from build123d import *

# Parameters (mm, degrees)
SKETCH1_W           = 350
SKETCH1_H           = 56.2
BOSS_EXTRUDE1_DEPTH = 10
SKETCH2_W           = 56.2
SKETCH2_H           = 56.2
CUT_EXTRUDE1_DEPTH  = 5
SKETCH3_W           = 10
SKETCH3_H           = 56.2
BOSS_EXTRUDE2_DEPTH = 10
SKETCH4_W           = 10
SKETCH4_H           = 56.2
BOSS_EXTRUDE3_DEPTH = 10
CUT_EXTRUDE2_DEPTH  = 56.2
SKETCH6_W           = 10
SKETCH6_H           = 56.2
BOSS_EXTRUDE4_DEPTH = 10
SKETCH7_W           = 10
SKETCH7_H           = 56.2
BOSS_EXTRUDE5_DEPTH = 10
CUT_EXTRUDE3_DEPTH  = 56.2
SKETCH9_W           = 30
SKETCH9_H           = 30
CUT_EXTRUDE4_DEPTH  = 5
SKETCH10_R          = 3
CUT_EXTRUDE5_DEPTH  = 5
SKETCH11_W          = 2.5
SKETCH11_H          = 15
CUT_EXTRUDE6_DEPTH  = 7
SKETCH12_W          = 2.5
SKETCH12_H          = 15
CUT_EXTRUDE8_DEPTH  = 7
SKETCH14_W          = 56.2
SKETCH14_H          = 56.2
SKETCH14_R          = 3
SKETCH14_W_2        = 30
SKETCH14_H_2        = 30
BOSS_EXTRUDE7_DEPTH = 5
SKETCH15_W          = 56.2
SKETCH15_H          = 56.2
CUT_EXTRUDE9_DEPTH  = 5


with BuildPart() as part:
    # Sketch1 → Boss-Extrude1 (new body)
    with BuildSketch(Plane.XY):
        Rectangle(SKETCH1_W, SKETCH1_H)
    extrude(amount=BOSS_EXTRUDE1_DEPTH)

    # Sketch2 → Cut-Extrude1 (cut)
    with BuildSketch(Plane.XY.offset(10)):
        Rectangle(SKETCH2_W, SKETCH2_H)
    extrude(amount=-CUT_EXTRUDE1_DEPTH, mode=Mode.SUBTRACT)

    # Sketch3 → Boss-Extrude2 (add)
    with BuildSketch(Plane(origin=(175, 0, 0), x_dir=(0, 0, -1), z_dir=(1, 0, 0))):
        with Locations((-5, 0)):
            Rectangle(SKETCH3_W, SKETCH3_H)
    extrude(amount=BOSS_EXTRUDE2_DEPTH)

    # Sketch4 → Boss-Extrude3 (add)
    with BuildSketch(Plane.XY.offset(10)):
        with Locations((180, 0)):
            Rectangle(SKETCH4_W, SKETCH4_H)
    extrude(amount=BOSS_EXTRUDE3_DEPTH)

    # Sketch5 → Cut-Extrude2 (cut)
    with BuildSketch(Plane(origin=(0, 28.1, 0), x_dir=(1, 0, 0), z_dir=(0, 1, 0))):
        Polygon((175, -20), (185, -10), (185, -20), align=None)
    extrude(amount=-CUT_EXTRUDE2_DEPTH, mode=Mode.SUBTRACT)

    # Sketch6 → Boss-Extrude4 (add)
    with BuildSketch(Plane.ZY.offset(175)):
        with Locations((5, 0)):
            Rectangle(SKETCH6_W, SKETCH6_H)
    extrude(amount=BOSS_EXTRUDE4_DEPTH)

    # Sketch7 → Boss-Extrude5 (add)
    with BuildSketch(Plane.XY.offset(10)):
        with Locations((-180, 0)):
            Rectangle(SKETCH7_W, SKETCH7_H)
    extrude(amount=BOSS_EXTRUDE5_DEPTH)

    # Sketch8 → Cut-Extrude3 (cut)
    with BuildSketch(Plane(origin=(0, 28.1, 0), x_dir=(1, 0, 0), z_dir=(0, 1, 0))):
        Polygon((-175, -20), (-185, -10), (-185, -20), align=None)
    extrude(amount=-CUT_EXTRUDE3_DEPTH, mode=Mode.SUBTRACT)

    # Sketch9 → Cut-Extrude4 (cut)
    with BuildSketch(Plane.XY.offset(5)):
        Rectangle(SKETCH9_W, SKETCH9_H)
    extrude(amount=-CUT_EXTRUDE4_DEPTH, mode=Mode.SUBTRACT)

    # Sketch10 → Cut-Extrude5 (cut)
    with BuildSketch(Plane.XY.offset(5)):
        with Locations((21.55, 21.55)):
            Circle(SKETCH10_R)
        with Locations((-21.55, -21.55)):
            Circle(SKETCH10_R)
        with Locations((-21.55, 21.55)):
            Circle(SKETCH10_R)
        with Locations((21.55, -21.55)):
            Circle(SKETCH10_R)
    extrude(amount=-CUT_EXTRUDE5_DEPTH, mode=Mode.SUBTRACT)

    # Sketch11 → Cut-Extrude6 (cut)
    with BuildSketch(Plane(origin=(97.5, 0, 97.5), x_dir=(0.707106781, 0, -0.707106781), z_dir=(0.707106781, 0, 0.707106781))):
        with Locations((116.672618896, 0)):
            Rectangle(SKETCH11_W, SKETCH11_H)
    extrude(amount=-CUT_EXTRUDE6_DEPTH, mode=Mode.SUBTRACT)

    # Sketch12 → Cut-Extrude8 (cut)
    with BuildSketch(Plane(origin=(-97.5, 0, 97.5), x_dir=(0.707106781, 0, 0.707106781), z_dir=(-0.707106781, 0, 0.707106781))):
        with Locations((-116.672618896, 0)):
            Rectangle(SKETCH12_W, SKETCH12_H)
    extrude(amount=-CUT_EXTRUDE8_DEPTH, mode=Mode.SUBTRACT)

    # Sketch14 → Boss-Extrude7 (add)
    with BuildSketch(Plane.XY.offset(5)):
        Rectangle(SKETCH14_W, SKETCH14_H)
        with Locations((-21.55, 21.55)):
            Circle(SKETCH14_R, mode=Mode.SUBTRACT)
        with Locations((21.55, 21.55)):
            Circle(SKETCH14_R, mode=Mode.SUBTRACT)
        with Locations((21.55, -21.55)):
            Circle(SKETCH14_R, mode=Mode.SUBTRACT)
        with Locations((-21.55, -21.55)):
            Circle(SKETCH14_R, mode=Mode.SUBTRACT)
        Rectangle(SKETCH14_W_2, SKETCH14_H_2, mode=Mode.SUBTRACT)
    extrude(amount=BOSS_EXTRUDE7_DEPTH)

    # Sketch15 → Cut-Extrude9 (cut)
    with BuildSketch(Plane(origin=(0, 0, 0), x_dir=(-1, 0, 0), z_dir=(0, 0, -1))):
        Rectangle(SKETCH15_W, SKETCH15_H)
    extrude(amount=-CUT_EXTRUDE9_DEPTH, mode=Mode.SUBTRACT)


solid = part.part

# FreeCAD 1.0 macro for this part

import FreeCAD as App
import Part
import Sketcher


def add_polygon(sketch, points):
    """Adds a closed chain of lines whose ends are joined by coincident constraints."""
    first, n = sketch.GeometryCount, len(points)
    for a, b in zip(points, points[1:] + points[:1]):
        sketch.addGeometry(Part.LineSegment(App.Vector(*a, 0), App.Vector(*b, 0)), False)
    for i in range(n):
        sketch.addConstraint(Sketcher.Constraint("Coincident", first + i, 2, first + (i + 1) % n, 1))

doc = App.newDocument("Part")
body = doc.addObject("PartDesign::Body", "Body")

# Sketch on XY plane
sketch1 = body.newObject("Sketcher::SketchObject", "Sketch")
sketch1.AttachmentSupport = (doc.getObject("XY_Plane"), [""])
sketch1.MapMode = "FlatFace"
add_polygon(sketch1, [(-175, 28.1), (-175, -28.1), (175, -28.1), (175, 28.1)])  # lines 0-3
sketch1.addConstraint([
    Sketcher.Constraint("Vertical", 0),
    Sketcher.Constraint("Horizontal", 1),
    Sketcher.Constraint("Vertical", 2),
    Sketcher.Constraint("Horizontal", 3),
    Sketcher.Constraint("Symmetric", 0, 2, 2, 2, -1, 1),
    Sketcher.Constraint("DistanceX", 1, 1, 1, 2, 350.0),
    Sketcher.Constraint("DistanceY", 0, 2, 0, 1, 56.2),
])
pad1 = body.newObject("PartDesign::Pad", "Pad")
pad1.Profile = sketch1
pad1.Length = 10

# Sketch on XY plane
sketch2 = body.newObject("Sketcher::SketchObject", "Sketch001")
sketch2.AttachmentSupport = (doc.getObject("XY_Plane"), [""])
sketch2.MapMode = "FlatFace"
sketch2.AttachmentOffset = App.Placement(App.Vector(0, 0, 10), App.Rotation())
add_polygon(sketch2, [(-28.1, 28.1), (-28.1, -28.1), (28.1, -28.1), (28.1, 28.1)])  # lines 0-3
sketch2.addConstraint([
    Sketcher.Constraint("Vertical", 0),
    Sketcher.Constraint("Horizontal", 1),
    Sketcher.Constraint("Vertical", 2),
    Sketcher.Constraint("Horizontal", 3),
    Sketcher.Constraint("Symmetric", 0, 2, 2, 2, -1, 1),
    Sketcher.Constraint("Equal", 3, 0),
    Sketcher.Constraint("DistanceX", 1, 1, 1, 2, 56.2),
])
pocket1 = body.newObject("PartDesign::Pocket", "Pocket")
pocket1.Profile = sketch2
pocket1.Length = 5

# Sketch on YZ plane
sketch3 = body.newObject("Sketcher::SketchObject", "Sketch002")
sketch3.AttachmentSupport = (doc.getObject("YZ_Plane"), [""])
sketch3.MapMode = "FlatFace"
sketch3.AttachmentOffset = App.Placement(App.Vector(0, 0, 175), App.Rotation())
add_polygon(sketch3, [(28.1, 10), (-28.1, 10), (-28.1, 0), (28.1, 0)])  # lines 0-3
sketch3.addConstraint([
    Sketcher.Constraint("Horizontal", 0),
    Sketcher.Constraint("Vertical", 1),
    Sketcher.Constraint("Horizontal", 2),
    Sketcher.Constraint("Vertical", 3),
    Sketcher.Constraint("Symmetric", 1, 2, 2, 2, -1, 1),
    Sketcher.Constraint("DistanceY", 1, 2, 1, 1, 10.0),
    Sketcher.Constraint("DistanceX", 0, 2, 0, 1, 56.2),
])
pad2 = body.newObject("PartDesign::Pad", "Pad001")
pad2.Profile = sketch3
pad2.Length = 10

# Sketch on XY plane
sketch4 = body.newObject("Sketcher::SketchObject", "Sketch003")
sketch4.AttachmentSupport = (doc.getObject("XY_Plane"), [""])
sketch4.MapMode = "FlatFace"
sketch4.AttachmentOffset = App.Placement(App.Vector(0, 0, 10), App.Rotation())
add_polygon(sketch4, [(175, 28.1), (175, -28.1), (185, -28.1), (185, 28.1)])  # lines 0-3
sketch4.addConstraint([
    Sketcher.Constraint("Vertical", 0),
    Sketcher.Constraint("Horizontal", 1),
    Sketcher.Constraint("Vertical", 2),
    Sketcher.Constraint("Horizontal", 3),
    Sketcher.Constraint("DistanceX", 1, 1, 1, 2, 10.0),
    Sketcher.Constraint("DistanceY", 0, 2, 0, 1, 56.2),
    Sketcher.Constraint("DistanceX", -1, 1, 0, 2, 175.0),
    Sketcher.Constraint("DistanceY", 0, 2, -1, 1, 28.1),
])
pad3 = body.newObject("PartDesign::Pad", "Pad002")
pad3.Profile = sketch4
pad3.Length = 10

# Sketch on XZ plane
sketch5 = body.newObject("Sketcher::SketchObject", "Sketch004")
sketch5.AttachmentSupport = (doc.getObject("XZ_Plane"), [""])
sketch5.MapMode = "FlatFace"
sketch5.AttachmentOffset = App.Placement(App.Vector(0, 0, -28.1), App.Rotation())
add_polygon(sketch5, [(185, 10), (175, 20), (185, 20)])  # lines 0-2
sketch5.addConstraint([
    Sketcher.Constraint("Horizontal", 1),
    Sketcher.Constraint("Vertical", 2),
    Sketcher.Constraint("Equal", 1, 2),
    Sketcher.Constraint("DistanceX", 1, 1, 1, 2, 10.0),
    Sketcher.Constraint("DistanceX", -1, 1, 0, 2, 175.0),
    Sketcher.Constraint("DistanceY", -1, 1, 0, 2, 20.0),
])
pocket2 = body.newObject("PartDesign::Pocket", "Pocket001")
pocket2.Profile = sketch5
pocket2.Length = 56.2
pocket2.Reversed = True

# Sketch on YZ plane
sketch6 = body.newObject("Sketcher::SketchObject", "Sketch005")
sketch6.AttachmentSupport = (doc.getObject("YZ_Plane"), [""])
sketch6.MapMode = "FlatFace"
sketch6.AttachmentOffset = App.Placement(App.Vector(0, 0, -175), App.Rotation())
add_polygon(sketch6, [(28.1, 0), (-28.1, 0), (-28.1, 10), (28.1, 10)])  # lines 0-3
sketch6.addConstraint([
    Sketcher.Constraint("Horizontal", 0),
    Sketcher.Constraint("Vertical", 1),
    Sketcher.Constraint("Horizontal", 2),
    Sketcher.Constraint("Vertical", 3),
    Sketcher.Constraint("Symmetric", 0, 2, 3, 2, -1, 1),
    Sketcher.Constraint("DistanceY", 1, 1, 1, 2, 10.0),
    Sketcher.Constraint("DistanceX", 0, 2, 0, 1, 56.2),
])
pad4 = body.newObject("PartDesign::Pad", "Pad003")
pad4.Profile = sketch6
pad4.Length = 10
pad4.Reversed = True

# Sketch on XY plane
sketch7 = body.newObject("Sketcher::SketchObject", "Sketch006")
sketch7.AttachmentSupport = (doc.getObject("XY_Plane"), [""])
sketch7.MapMode = "FlatFace"
sketch7.AttachmentOffset = App.Placement(App.Vector(0, 0, 10), App.Rotation())
add_polygon(sketch7, [(-185, 28.1), (-185, -28.1), (-175, -28.1), (-175, 28.1)])  # lines 0-3
sketch7.addConstraint([
    Sketcher.Constraint("Vertical", 0),
    Sketcher.Constraint("Horizontal", 1),
    Sketcher.Constraint("Vertical", 2),
    Sketcher.Constraint("Horizontal", 3),
    Sketcher.Constraint("DistanceX", 1, 1, 1, 2, 10.0),
    Sketcher.Constraint("DistanceY", 0, 2, 0, 1, 56.2),
    Sketcher.Constraint("DistanceX", 0, 2, -1, 1, 185.0),
    Sketcher.Constraint("DistanceY", 0, 2, -1, 1, 28.1),
])
pad5 = body.newObject("PartDesign::Pad", "Pad004")
pad5.Profile = sketch7
pad5.Length = 10

# Sketch on XZ plane
sketch8 = body.newObject("Sketcher::SketchObject", "Sketch007")
sketch8.AttachmentSupport = (doc.getObject("XZ_Plane"), [""])
sketch8.MapMode = "FlatFace"
sketch8.AttachmentOffset = App.Placement(App.Vector(0, 0, -28.1), App.Rotation())
add_polygon(sketch8, [(-175, 20), (-185, 10), (-185, 20)])  # lines 0-2
sketch8.addConstraint([
    Sketcher.Constraint("Vertical", 1),
    Sketcher.Constraint("Horizontal", 2),
    Sketcher.Constraint("Equal", 2, 1),
    Sketcher.Constraint("DistanceX", 2, 1, 2, 2, 10.0),
    Sketcher.Constraint("DistanceX", 0, 2, -1, 1, 185.0),
    Sketcher.Constraint("DistanceY", -1, 1, 0, 2, 10.0),
])
pocket3 = body.newObject("PartDesign::Pocket", "Pocket002")
pocket3.Profile = sketch8
pocket3.Length = 56.2
pocket3.Reversed = True

# Sketch on XY plane
sketch9 = body.newObject("Sketcher::SketchObject", "Sketch008")
sketch9.AttachmentSupport = (doc.getObject("XY_Plane"), [""])
sketch9.MapMode = "FlatFace"
sketch9.AttachmentOffset = App.Placement(App.Vector(0, 0, 5), App.Rotation())
add_polygon(sketch9, [(-15, 15), (-15, -15), (15, -15), (15, 15)])  # lines 0-3
sketch9.addConstraint([
    Sketcher.Constraint("Vertical", 0),
    Sketcher.Constraint("Horizontal", 1),
    Sketcher.Constraint("Vertical", 2),
    Sketcher.Constraint("Horizontal", 3),
    Sketcher.Constraint("Symmetric", 0, 2, 2, 2, -1, 1),
    Sketcher.Constraint("Equal", 3, 0),
    Sketcher.Constraint("DistanceX", 1, 1, 1, 2, 30.0),
])
pocket4 = body.newObject("PartDesign::Pocket", "Pocket003")
pocket4.Profile = sketch9
pocket4.Length = 5

# Sketch on XY plane
sketch10 = body.newObject("Sketcher::SketchObject", "Sketch009")
sketch10.AttachmentSupport = (doc.getObject("XY_Plane"), [""])
sketch10.MapMode = "FlatFace"
sketch10.AttachmentOffset = App.Placement(App.Vector(0, 0, 5), App.Rotation())
sketch10.addGeometry([
    Part.Circle(App.Vector(21.55, 21.55, 0), App.Vector(0, 0, 1), 3),
    Part.Circle(App.Vector(-21.55, -21.55, 0), App.Vector(0, 0, 1), 3),
    Part.Circle(App.Vector(-21.55, 21.55, 0), App.Vector(0, 0, 1), 3),
    Part.Circle(App.Vector(21.55, -21.55, 0), App.Vector(0, 0, 1), 3),
], False)
sketch10.addConstraint([
    Sketcher.Constraint("Equal", 0, 1),
    Sketcher.Constraint("Equal", 1, 2),
    Sketcher.Constraint("Equal", 2, 3),
    Sketcher.Constraint("Symmetric", 0, 3, 1, 3, -1, 1),
    Sketcher.Constraint("Symmetric", 2, 3, 3, 3, -1, 1),
    Sketcher.Constraint("Symmetric", 0, 3, 2, 3, -2),
    Sketcher.Constraint("Diameter", 0, 6.0),
    Sketcher.Constraint("DistanceX", 1, 3, 0, 3, 43.1),
    Sketcher.Constraint("DistanceY", 1, 3, 0, 3, 43.1),
])
pocket5 = body.newObject("PartDesign::Pocket", "Pocket004")
pocket5.Profile = sketch10
pocket5.Length = 5

# Sketch on an angled plane
sketch11 = body.newObject("Sketcher::SketchObject", "Sketch010")
sketch11.Placement = App.Placement(App.Vector(97.5, 0, 97.5), App.Rotation(App.Vector(0.707106781, 0, -0.707106781), App.Vector(0, 0.999999999, 0), App.Vector(0.707106781, 0, 0.707106781), "ZXY"))
add_polygon(sketch11, [(115.422619, 7.5), (115.422619, -7.5), (117.922619, -7.5), (117.922619, 7.5)])  # lines 0-3
sketch11.addConstraint([
    Sketcher.Constraint("Vertical", 0),
    Sketcher.Constraint("Horizontal", 1),
    Sketcher.Constraint("Vertical", 2),
    Sketcher.Constraint("Horizontal", 3),
    Sketcher.Constraint("DistanceY", 0, 2, 0, 1, 15.0),
    Sketcher.Constraint("DistanceX", 1, 1, 1, 2, 2.5),
    Sketcher.Constraint("DistanceY", 0, 2, -1, 1, 7.5),
    Sketcher.Constraint("DistanceX", -1, 1, 0, 2, 115.422619),
])
pocket6 = body.newObject("PartDesign::Pocket", "Pocket005")
pocket6.Profile = sketch11
pocket6.Length = 7

# Sketch on an angled plane
sketch12 = body.newObject("Sketcher::SketchObject", "Sketch011")
sketch12.Placement = App.Placement(App.Vector(-97.5, 0, 97.5), App.Rotation(App.Vector(0.707106781, 0, 0.707106781), App.Vector(0, 0.999999999, 0), App.Vector(-0.707106781, 0, 0.707106781), "ZXY"))
add_polygon(sketch12, [(-117.922619, 7.5), (-117.922619, -7.5), (-115.422619, -7.5), (-115.422619, 7.5)])  # lines 0-3
sketch12.addConstraint([
    Sketcher.Constraint("Vertical", 0),
    Sketcher.Constraint("Horizontal", 1),
    Sketcher.Constraint("Vertical", 2),
    Sketcher.Constraint("Horizontal", 3),
    Sketcher.Constraint("DistanceY", 0, 2, 0, 1, 15.0),
    Sketcher.Constraint("DistanceX", 1, 1, 1, 2, 2.5),
    Sketcher.Constraint("DistanceY", 0, 2, -1, 1, 7.5),
    Sketcher.Constraint("DistanceX", 0, 2, -1, 1, 117.922619),
])
pocket7 = body.newObject("PartDesign::Pocket", "Pocket006")
pocket7.Profile = sketch12
pocket7.Length = 7

# Sketch on XY plane
sketch13 = body.newObject("Sketcher::SketchObject", "Sketch012")
sketch13.AttachmentSupport = (doc.getObject("XY_Plane"), [""])
sketch13.MapMode = "FlatFace"
sketch13.AttachmentOffset = App.Placement(App.Vector(0, 0, 5), App.Rotation())
add_polygon(sketch13, [(-28.1, 28.1), (-28.1, -28.1), (28.1, -28.1), (28.1, 28.1)])  # lines 0-3
sketch13.addGeometry(Part.Circle(App.Vector(-21.55, -21.55, 0), App.Vector(0, 0, 1), 3), False)  # 4
sketch13.addGeometry(Part.Circle(App.Vector(21.55, -21.55, 0), App.Vector(0, 0, 1), 3), False)  # 5
sketch13.addGeometry(Part.Circle(App.Vector(-21.55, 21.55, 0), App.Vector(0, 0, 1), 3), False)  # 6
add_polygon(sketch13, [(15, -15), (-15, -15), (-15, 15), (15, 15)])  # lines 7-10
sketch13.addGeometry(Part.Circle(App.Vector(21.55, 21.55, 0), App.Vector(0, 0, 1), 3), False)  # 11
sketch13.addConstraint([
    Sketcher.Constraint("Vertical", 0),
    Sketcher.Constraint("Horizontal", 1),
    Sketcher.Constraint("Vertical", 2),
    Sketcher.Constraint("Horizontal", 3),
    Sketcher.Constraint("Horizontal", 7),
    Sketcher.Constraint("Vertical", 8),
    Sketcher.Constraint("Horizontal", 9),
    Sketcher.Constraint("Vertical", 10),
    Sketcher.Constraint("Equal", 4, 5),
    Sketcher.Constraint("Equal", 5, 6),
    Sketcher.Constraint("Equal", 6, 11),
    Sketcher.Constraint("Symmetric", 5, 3, 6, 3, -1, 1),
    Sketcher.Constraint("Symmetric", 4, 3, 11, 3, -1, 1),
    Sketcher.Constraint("Symmetric", 0, 2, 2, 2, -1, 1),
    Sketcher.Constraint("Symmetric", 7, 2, 9, 2, -1, 1),
    Sketcher.Constraint("Symmetric", 4, 3, 5, 3, -2),
    Sketcher.Constraint("Equal", 3, 0),
    Sketcher.Constraint("Equal", 9, 8),
    Sketcher.Constraint("Diameter", 4, 6.0),
    Sketcher.Constraint("DistanceX", 7, 2, 7, 1, 30.0),
    Sketcher.Constraint("DistanceX", 1, 1, 1, 2, 56.2),
    Sketcher.Constraint("DistanceX", 4, 3, 5, 3, 43.1),
    Sketcher.Constraint("DistanceY", 4, 3, 6, 3, 43.1),
])
pad6 = body.newObject("PartDesign::Pad", "Pad005")
pad6.Profile = sketch13
pad6.Length = 5

# Sketch on XY plane
sketch14 = body.newObject("Sketcher::SketchObject", "Sketch013")
sketch14.AttachmentSupport = (doc.getObject("XY_Plane"), [""])
sketch14.MapMode = "FlatFace"
add_polygon(sketch14, [(28.1, 28.1), (28.1, -28.1), (-28.1, -28.1), (-28.1, 28.1)])  # lines 0-3
sketch14.addConstraint([
    Sketcher.Constraint("Vertical", 0),
    Sketcher.Constraint("Horizontal", 1),
    Sketcher.Constraint("Vertical", 2),
    Sketcher.Constraint("Horizontal", 3),
    Sketcher.Constraint("Symmetric", 0, 2, 2, 2, -1, 1),
    Sketcher.Constraint("Equal", 3, 0),
    Sketcher.Constraint("DistanceX", 1, 2, 1, 1, 56.2),
])
pocket8 = body.newObject("PartDesign::Pocket", "Pocket007")
pocket8.Profile = sketch14
pocket8.Length = 5
pocket8.Reversed = True

doc.recompute()
